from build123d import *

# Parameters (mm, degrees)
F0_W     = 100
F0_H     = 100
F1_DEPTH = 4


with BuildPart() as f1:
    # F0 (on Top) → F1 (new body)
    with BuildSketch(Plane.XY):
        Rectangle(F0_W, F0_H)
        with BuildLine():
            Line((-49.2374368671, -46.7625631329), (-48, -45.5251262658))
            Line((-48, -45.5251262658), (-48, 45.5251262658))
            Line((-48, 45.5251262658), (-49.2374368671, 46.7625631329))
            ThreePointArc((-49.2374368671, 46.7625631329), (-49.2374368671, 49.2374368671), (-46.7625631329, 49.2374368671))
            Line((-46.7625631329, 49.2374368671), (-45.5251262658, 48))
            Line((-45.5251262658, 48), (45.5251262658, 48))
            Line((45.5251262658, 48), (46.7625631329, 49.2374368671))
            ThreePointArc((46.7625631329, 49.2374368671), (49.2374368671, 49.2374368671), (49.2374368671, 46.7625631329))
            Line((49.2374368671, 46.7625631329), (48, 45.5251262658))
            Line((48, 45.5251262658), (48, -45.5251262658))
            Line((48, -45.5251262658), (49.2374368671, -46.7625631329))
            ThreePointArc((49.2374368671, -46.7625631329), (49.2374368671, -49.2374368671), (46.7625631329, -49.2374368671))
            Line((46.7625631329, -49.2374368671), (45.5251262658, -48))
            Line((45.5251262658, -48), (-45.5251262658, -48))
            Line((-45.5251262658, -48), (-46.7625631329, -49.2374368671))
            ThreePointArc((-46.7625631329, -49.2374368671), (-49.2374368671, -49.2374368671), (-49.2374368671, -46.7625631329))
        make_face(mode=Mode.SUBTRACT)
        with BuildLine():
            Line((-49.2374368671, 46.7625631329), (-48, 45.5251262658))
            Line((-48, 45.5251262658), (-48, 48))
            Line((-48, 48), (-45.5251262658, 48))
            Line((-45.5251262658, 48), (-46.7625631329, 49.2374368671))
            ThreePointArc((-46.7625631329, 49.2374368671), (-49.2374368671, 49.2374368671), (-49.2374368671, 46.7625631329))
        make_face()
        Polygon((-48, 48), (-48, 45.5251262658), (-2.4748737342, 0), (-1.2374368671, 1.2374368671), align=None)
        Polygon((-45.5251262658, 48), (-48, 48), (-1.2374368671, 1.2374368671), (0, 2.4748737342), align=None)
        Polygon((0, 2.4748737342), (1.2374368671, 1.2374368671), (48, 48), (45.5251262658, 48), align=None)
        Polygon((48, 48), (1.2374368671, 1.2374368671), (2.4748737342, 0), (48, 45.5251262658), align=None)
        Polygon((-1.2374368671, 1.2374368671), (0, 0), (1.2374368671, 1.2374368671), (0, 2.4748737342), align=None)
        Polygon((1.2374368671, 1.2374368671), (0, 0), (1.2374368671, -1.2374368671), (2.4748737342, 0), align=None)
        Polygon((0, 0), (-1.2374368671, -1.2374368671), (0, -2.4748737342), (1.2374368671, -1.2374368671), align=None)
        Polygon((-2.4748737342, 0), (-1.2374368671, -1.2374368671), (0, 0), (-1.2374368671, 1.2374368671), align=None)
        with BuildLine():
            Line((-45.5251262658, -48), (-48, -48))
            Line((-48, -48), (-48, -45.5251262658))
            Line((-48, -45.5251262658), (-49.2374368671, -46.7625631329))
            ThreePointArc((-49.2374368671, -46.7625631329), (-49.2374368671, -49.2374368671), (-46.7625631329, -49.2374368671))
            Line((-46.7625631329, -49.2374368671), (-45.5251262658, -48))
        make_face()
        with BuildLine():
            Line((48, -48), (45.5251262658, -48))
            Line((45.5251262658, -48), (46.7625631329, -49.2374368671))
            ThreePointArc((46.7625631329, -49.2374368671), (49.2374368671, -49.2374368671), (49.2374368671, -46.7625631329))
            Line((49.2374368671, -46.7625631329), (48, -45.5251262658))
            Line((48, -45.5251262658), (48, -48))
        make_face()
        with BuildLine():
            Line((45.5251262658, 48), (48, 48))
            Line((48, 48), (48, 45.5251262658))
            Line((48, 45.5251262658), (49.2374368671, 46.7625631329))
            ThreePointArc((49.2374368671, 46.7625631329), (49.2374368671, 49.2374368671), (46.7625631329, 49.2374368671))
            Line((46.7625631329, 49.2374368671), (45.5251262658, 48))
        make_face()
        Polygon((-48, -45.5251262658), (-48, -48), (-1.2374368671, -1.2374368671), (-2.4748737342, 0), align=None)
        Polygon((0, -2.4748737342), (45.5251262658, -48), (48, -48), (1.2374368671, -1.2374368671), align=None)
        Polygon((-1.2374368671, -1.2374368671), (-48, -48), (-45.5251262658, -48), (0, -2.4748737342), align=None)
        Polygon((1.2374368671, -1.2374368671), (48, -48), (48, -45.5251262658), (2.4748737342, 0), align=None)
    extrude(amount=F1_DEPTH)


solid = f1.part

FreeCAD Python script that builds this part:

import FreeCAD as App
import Part
import Sketcher
Q = App.Units.Quantity

doc = App.newDocument("Part")
params = doc.addObject("Spreadsheet::Sheet", "Params")
for row, (alias, value) in enumerate([
    ("sketch1_width", "100 mm"),
    ("pad1_length", "4 mm"),
], start=1):
    params.set(f"A{row}", alias)
    params.set(f"B{row}", "=" + value)
    params.setAlias(f"B{row}", alias)

body = doc.addObject("PartDesign::Body", "Body")

# Sketch on XY plane
sketch1 = body.newObject("Sketcher::SketchObject", "Sketch")
sketch1.AttachmentSupport = (doc.getObject("XY_Plane"), [""])
sketch1.MapMode = "FlatFace"
sketch1.addGeometry(Part.LineSegment(App.Vector(-50, 50, 0), App.Vector(-50, -50, 0)), False)
sketch1.addGeometry(Part.LineSegment(App.Vector(-50, -50, 0), App.Vector(50, -50, 0)), False)
sketch1.addGeometry(Part.LineSegment(App.Vector(50, -50, 0), App.Vector(50, 50, 0)), False)
sketch1.addGeometry(Part.LineSegment(App.Vector(50, 50, 0), App.Vector(-50, 50, 0)), False)
sketch1.addGeometry(Part.LineSegment(App.Vector(2, 0, 0), App.Vector(48, 46, 0)), False)
sketch1.addGeometry(Part.LineSegment(App.Vector(48, 46, 0), App.Vector(48, -46, 0)), False)
sketch1.addGeometry(Part.LineSegment(App.Vector(48, -46, 0), App.Vector(2, 0, 0)), False)
sketch1.addGeometry(Part.LineSegment(App.Vector(46, -48, 0), App.Vector(-46, -48, 0)), False)
sketch1.addGeometry(Part.LineSegment(App.Vector(-46, -48, 0), App.Vector(0, -2, 0)), False)
sketch1.addGeometry(Part.LineSegment(App.Vector(0, -2, 0), App.Vector(46, -48, 0)), False)
sketch1.addGeometry(Part.LineSegment(App.Vector(-48, -46, 0), App.Vector(-48, 46, 0)), False)
sketch1.addGeometry(Part.LineSegment(App.Vector(-48, 46, 0), App.Vector(-2, 0, 0)), False)
sketch1.addGeometry(Part.LineSegment(App.Vector(-2, 0, 0), App.Vector(-48, -46, 0)), False)
sketch1.addGeometry(Part.LineSegment(App.Vector(-46, 48, 0), App.Vector(46, 48, 0)), False)
sketch1.addGeometry(Part.LineSegment(App.Vector(46, 48, 0), App.Vector(0, 2, 0)), False)
sketch1.addGeometry(Part.LineSegment(App.Vector(0, 2, 0), App.Vector(-46, 48, 0)), False)
sketch1.addConstraint(Sketcher.Constraint("Coincident", 0, 2, 1, 1))
sketch1.addConstraint(Sketcher.Constraint("Coincident", 1, 2, 2, 1))
sketch1.addConstraint(Sketcher.Constraint("Coincident", 2, 2, 3, 1))
sketch1.addConstraint(Sketcher.Constraint("Coincident", 3, 2, 0, 1))
sketch1.addConstraint(Sketcher.Constraint("Coincident", 4, 2, 5, 1))
sketch1.addConstraint(Sketcher.Constraint("Coincident", 5, 2, 6, 1))
sketch1.addConstraint(Sketcher.Constraint("Coincident", 6, 2, 4, 1))
sketch1.addConstraint(Sketcher.Constraint("Coincident", 7, 2, 8, 1))
sketch1.addConstraint(Sketcher.Constraint("Coincident", 8, 2, 9, 1))
sketch1.addConstraint(Sketcher.Constraint("Coincident", 9, 2, 7, 1))
sketch1.addConstraint(Sketcher.Constraint("Coincident", 10, 2, 11, 1))
sketch1.addConstraint(Sketcher.Constraint("Coincident", 11, 2, 12, 1))
sketch1.addConstraint(Sketcher.Constraint("Coincident", 12, 2, 10, 1))
sketch1.addConstraint(Sketcher.Constraint("Coincident", 13, 2, 14, 1))
sketch1.addConstraint(Sketcher.Constraint("Coincident", 14, 2, 15, 1))
sketch1.addConstraint(Sketcher.Constraint("Coincident", 15, 2, 13, 1))
sketch1.addConstraint(Sketcher.Constraint("Vertical", 0))
sketch1.addConstraint(Sketcher.Constraint("Horizontal", 1))
sketch1.addConstraint(Sketcher.Constraint("Vertical", 2))
sketch1.addConstraint(Sketcher.Constraint("Horizontal", 3))
sketch1.addConstraint(Sketcher.Constraint("Vertical", 5))
sketch1.addConstraint(Sketcher.Constraint("Horizontal", 7))
sketch1.addConstraint(Sketcher.Constraint("Vertical", 10))
sketch1.addConstraint(Sketcher.Constraint("Horizontal", 13))
sketch1.addConstraint(Sketcher.Constraint("Symmetric", 0, 2, 2, 2, -1, 1))
sketch1.addConstraint(Sketcher.Constraint("Symmetric", 5, 2, 10, 2, -1, 1))
sketch1.addConstraint(Sketcher.Constraint("Symmetric", 6, 2, 11, 2, -1, 1))
sketch1.addConstraint(Sketcher.Constraint("Symmetric", 7, 2, 13, 2, -1, 1))
sketch1.addConstraint(Sketcher.Constraint("Symmetric", 8, 2, 14, 2, -1, 1))
sketch1.addConstraint(Sketcher.Constraint("PointOnObject", 6, 2, -1))
sketch1.addConstraint(Sketcher.Constraint("PointOnObject", 8, 2, -2))
sketch1.addConstraint(Sketcher.Constraint("Perpendicular", 4, 6))
sketch1.addConstraint(Sketcher.Constraint("Perpendicular", 6, 8))
sketch1.addConstraint(Sketcher.Constraint("Perpendicular", 8, 9))
sketch1.addConstraint(Sketcher.Constraint("Perpendicular", 11, 12))
sketch1.addConstraint(Sketcher.Constraint("Perpendicular", 14, 15))
sketch1.addConstraint(Sketcher.Constraint("Horizontal", 4, 2, 10, 2))
sketch1.addConstraint(Sketcher.Constraint("Equal", 3, 0))
sketch1.addConstraint(Sketcher.Constraint("Equal", 13, 5))
sketch1.addConstraint(Sketcher.Constraint("DistanceX", 1, 1, 1, 2, Q("100 mm")))
sketch1.addConstraint(Sketcher.Constraint("DistanceX", -1, 1, 4, 2, Q("48 mm")))
sketch1.addConstraint(Sketcher.Constraint("DistanceY", 7, 2, -1, 1, Q("48 mm")))
sketch1.addConstraint(Sketcher.Constraint("Distance", 4, Q("64.382251 mm")))
sketch1.setExpression("Constraints[39]", "Params.sketch1_width")
pad1 = body.newObject("PartDesign::Pad", "Pad")
pad1.Profile = sketch1
pad1.setExpression("Length", "Params.pad1_length")

doc.recompute()
